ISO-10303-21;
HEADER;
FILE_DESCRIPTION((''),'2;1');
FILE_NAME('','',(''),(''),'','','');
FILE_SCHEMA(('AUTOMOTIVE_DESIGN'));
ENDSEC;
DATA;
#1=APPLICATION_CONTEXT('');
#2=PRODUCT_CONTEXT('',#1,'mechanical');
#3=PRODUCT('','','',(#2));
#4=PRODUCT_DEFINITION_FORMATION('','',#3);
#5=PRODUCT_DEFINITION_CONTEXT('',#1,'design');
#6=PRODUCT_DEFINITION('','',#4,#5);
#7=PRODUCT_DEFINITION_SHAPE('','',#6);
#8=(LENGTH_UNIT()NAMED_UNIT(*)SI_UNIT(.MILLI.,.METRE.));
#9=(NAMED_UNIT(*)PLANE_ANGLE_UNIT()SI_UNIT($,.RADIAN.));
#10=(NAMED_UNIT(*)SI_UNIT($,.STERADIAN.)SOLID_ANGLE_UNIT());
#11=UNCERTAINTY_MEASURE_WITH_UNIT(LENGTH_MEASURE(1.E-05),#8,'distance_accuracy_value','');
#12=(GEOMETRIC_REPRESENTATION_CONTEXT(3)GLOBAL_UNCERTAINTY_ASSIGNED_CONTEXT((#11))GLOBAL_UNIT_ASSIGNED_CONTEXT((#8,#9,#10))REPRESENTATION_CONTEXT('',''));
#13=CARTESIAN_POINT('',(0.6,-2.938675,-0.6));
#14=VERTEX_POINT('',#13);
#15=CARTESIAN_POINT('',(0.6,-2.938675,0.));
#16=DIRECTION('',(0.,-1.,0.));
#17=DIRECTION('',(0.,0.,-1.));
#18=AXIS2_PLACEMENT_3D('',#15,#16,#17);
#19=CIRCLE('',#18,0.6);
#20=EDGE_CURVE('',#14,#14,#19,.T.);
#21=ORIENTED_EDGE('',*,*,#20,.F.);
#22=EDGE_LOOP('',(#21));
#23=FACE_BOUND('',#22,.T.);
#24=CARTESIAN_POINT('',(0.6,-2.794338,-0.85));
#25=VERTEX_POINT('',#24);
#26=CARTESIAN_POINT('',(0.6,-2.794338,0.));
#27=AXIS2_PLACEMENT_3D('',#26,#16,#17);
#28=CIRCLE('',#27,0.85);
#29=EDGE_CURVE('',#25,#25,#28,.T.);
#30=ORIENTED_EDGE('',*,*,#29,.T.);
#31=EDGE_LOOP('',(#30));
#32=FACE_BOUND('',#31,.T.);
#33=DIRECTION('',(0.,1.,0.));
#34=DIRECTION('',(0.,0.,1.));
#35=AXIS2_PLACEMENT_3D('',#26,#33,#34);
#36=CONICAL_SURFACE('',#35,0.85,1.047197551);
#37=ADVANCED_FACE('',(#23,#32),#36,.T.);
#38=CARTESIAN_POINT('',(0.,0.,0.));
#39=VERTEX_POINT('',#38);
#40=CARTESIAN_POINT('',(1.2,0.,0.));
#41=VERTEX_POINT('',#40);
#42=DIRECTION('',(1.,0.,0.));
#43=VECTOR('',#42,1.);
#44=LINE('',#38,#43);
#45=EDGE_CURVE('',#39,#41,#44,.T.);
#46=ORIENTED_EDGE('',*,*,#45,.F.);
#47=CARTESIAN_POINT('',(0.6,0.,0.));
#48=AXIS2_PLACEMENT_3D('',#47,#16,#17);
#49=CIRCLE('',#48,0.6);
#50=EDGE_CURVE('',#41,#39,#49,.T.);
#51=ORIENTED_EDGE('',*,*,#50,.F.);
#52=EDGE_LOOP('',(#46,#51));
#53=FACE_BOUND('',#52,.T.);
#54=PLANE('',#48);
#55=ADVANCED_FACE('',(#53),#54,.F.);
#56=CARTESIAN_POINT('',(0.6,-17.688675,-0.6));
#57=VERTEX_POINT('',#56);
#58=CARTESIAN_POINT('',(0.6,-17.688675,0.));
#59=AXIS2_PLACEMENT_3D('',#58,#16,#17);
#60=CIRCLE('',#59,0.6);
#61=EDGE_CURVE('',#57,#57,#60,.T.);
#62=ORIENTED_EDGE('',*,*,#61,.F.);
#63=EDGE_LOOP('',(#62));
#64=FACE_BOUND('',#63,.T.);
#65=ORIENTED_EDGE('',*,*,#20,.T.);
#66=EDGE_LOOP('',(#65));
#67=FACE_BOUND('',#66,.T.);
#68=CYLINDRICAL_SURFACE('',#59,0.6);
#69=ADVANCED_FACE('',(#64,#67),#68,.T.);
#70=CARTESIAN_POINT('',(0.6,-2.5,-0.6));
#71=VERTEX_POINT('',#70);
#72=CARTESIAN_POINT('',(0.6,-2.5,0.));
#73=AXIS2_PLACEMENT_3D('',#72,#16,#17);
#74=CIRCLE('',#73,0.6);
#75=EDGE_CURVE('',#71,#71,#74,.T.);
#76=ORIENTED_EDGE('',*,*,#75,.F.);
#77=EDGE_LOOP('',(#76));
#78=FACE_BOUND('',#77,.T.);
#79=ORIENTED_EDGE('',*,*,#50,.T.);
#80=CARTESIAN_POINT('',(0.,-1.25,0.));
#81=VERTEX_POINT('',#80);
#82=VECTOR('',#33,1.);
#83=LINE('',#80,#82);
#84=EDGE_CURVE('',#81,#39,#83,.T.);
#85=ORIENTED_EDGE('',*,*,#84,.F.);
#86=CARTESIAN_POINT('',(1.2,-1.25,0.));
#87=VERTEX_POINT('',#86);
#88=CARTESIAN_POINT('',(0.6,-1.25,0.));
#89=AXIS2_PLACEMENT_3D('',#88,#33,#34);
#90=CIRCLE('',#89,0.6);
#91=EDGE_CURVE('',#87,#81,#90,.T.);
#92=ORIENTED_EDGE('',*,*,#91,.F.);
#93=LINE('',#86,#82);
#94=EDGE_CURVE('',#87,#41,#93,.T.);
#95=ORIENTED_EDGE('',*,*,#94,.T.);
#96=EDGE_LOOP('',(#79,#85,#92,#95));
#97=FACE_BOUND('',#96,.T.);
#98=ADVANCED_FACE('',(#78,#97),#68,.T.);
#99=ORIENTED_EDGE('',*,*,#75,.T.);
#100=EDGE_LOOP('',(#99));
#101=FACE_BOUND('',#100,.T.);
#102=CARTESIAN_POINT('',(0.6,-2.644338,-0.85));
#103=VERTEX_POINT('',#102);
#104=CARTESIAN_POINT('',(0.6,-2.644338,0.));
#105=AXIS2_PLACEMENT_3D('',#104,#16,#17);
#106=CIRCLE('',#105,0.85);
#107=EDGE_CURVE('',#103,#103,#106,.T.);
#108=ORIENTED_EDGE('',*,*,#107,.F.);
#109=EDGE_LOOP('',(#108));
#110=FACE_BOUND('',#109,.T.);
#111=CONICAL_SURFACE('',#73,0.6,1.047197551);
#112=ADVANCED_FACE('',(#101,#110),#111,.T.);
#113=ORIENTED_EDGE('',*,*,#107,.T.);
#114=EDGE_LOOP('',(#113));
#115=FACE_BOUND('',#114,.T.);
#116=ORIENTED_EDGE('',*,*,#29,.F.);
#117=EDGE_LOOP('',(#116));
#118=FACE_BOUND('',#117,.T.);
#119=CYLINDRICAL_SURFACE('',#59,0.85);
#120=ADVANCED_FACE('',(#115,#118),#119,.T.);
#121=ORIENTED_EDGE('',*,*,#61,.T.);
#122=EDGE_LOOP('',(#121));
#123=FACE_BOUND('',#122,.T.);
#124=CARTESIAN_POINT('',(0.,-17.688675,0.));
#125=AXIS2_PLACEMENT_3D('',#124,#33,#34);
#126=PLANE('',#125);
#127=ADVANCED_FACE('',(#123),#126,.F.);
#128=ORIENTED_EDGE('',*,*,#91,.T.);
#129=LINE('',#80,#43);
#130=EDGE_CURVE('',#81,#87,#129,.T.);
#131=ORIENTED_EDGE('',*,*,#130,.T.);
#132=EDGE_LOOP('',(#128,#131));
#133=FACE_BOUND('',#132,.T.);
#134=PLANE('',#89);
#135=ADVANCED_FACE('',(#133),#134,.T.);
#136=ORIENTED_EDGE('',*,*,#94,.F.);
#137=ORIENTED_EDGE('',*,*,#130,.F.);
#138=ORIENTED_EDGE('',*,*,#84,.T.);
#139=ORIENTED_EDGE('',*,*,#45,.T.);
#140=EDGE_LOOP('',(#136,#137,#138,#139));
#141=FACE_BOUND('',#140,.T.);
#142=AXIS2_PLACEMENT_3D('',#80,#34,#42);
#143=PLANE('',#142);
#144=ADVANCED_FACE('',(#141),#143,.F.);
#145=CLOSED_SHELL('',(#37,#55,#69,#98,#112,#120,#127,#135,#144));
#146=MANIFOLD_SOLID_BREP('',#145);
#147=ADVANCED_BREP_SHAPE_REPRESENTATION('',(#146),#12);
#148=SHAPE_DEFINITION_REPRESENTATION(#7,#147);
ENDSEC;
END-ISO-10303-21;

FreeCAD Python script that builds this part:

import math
import FreeCAD as App
import Part
import Sketcher
from FreeCAD import Vector
Q = App.Units.Quantity


def add_polygon(sketch, points):
    """Adds a closed chain of lines whose ends are joined by coincident constraints."""
    first, n = sketch.GeometryCount, len(points)
    for a, b in zip(points, points[1:] + points[:1]):
        sketch.addGeometry(Part.LineSegment(App.Vector(*a, 0), App.Vector(*b, 0)), False)
    for i in range(n):
        sketch.addConstraint(Sketcher.Constraint("Coincident", first + i, 2, first + (i + 1) % n, 1))

doc = App.newDocument("Part")
params = doc.addObject("Spreadsheet::Sheet", "Params")
for row, (alias, value) in enumerate([
    ("sketch1_width", "0.6 mm"),
    ("sketch1_height", "2.5 mm"),
    ("sketch1_height2", "0.15 mm"),
    ("sketch1_height3", "14.75 mm"),
    ("revolution_angle", "360 deg"),
    ("sketch2_radius", "0.6 mm"),
    ("pocket1_length", "1.25 mm"),
], start=1):
    params.set(f"A{row}", alias)
    params.set(f"B{row}", "=" + value)
    params.setAlias(f"B{row}", alias)

body = doc.addObject("PartDesign::Body", "Body")

# Sketch on XY plane
sketch1 = body.newObject("Sketcher::SketchObject", "Sketch")
sketch1.AttachmentSupport = (doc.getObject("XY_Plane"), [""])
sketch1.MapMode = "FlatFace"
add_polygon(sketch1, [(0, 0), (0, -2.5), (-0.25, -2.644338), (-0.25, -2.794338), (0, -2.938675), (0, -17.688675), (0.6, -17.688675), (0.6, 0)])  # lines 0-7
sketch1.addGeometry(Part.LineSegment(Vector(0.6, -17.688675, 0), Vector(0.6, 0, 0)), True)  # axis
sketch1.addConstraint([
    Sketcher.Constraint("Vertical", 0),
    Sketcher.Constraint("Vertical", 2),
    Sketcher.Constraint("Vertical", 4),
    Sketcher.Constraint("Horizontal", 5),
    Sketcher.Constraint("Vertical", 6),
    Sketcher.Constraint("Horizontal", 7),
    Sketcher.Constraint("Vertical", 8),
    Sketcher.Constraint("Coincident", 7, 2, -1, 1),
    Sketcher.Constraint("Coincident", 8, 1, 5, 2),
    Sketcher.Constraint("PointOnObject", 3, 2, -2),
    Sketcher.Constraint("PointOnObject", 8, 2, -1),
    Sketcher.Constraint("Equal", 1, 3),
    Sketcher.Constraint("Angle", 1, Q("-150 deg")),
    Sketcher.Constraint("DistanceX", 5, 1, 5, 2, 0.6),
    Sketcher.Constraint("DistanceY", 0, 2, 0, 1, 2.5),
    Sketcher.Constraint("DistanceY", 2, 2, 2, 1, 0.15),
    Sketcher.Constraint("DistanceY", 4, 2, 4, 1, 14.75),
    Sketcher.Constraint("DistanceX", 1, 2, -1, 1, 0.25),
])
sketch1.setExpression("Constraints[21]", "Params.sketch1_width")
sketch1.setExpression("Constraints[22]", "Params.sketch1_height")
sketch1.setExpression("Constraints[23]", "Params.sketch1_height2")
sketch1.setExpression("Constraints[24]", "Params.sketch1_height3")
revolution = body.newObject("PartDesign::Revolution", "Revolution")
revolution.Profile = sketch1
revolution.ReferenceAxis = (sketch1, ["Axis0"])
revolution.setExpression("Angle", "Params.revolution_angle")

# Sketch on XZ plane
sketch2 = body.newObject("Sketcher::SketchObject", "Sketch001")
sketch2.AttachmentSupport = (doc.getObject("XZ_Plane"), [""])
sketch2.MapMode = "FlatFace"
sketch2.AttachmentOffset = App.Placement(Vector(0, 0, 1.25), App.Rotation())
sketch2.addGeometry([
    Part.LineSegment(Vector(0, 0, 0), Vector(1.2, 0, 0)),
    Part.ArcOfCircle(Part.Circle(Vector(0.6, 0, 0), Vector(0, 0, 1), 0.6), math.radians(180), math.radians(360)),
], False)
sketch2.addConstraint([
    Sketcher.Constraint("Coincident", 0, 1, 1, 1),
    Sketcher.Constraint("Coincident", 1, 2, 0, 2),
    Sketcher.Constraint("Horizontal", 0),
    Sketcher.Constraint("Coincident", 0, 1, -1, 1),
    Sketcher.Constraint("PointOnObject", 1, 3, -1),
    Sketcher.Constraint("Radius", 1, 0.6),
])
sketch2.setExpression("Constraints[5]", "Params.sketch2_radius")
pocket1 = body.newObject("PartDesign::Pocket", "Pocket")
pocket1.Profile = sketch2
pocket1.setExpression("Length", "Params.pocket1_length")

doc.recompute()
